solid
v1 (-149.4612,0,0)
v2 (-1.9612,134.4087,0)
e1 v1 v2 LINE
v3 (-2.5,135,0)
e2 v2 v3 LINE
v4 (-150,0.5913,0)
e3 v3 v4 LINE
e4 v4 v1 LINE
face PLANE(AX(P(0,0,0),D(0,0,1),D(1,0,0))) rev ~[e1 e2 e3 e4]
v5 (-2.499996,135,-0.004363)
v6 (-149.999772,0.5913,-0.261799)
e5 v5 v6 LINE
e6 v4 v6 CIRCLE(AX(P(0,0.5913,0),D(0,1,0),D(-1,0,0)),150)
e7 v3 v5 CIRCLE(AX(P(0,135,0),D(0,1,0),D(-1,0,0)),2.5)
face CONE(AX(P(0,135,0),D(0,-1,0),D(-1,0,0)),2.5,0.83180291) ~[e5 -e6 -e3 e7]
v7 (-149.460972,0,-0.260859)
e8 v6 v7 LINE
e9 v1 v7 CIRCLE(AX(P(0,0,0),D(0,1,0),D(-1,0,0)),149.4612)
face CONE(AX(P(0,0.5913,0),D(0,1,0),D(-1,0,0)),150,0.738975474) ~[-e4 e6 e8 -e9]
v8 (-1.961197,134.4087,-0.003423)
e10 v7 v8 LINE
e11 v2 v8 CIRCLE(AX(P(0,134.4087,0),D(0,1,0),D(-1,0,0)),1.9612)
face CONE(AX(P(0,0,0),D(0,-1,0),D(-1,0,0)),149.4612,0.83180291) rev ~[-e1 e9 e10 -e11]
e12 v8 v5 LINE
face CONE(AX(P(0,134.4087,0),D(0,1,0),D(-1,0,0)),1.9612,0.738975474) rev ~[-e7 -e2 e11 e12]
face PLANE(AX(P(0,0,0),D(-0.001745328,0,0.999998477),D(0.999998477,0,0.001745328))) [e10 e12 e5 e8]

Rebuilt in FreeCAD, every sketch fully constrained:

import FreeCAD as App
import Part
import Sketcher

V = App.Vector
Q = App.Units.Quantity

doc = App.newDocument("Part")
body = doc.addObject("PartDesign::Body", "Body")

# Sketch on XY plane
sketch1 = body.newObject("Sketcher::SketchObject", "Sketch")
sketch1.AttachmentSupport = (doc.getObject("XY_Plane"), [""])
sketch1.MapMode = "FlatFace"
sketch1.addGeometry([
    Part.LineSegment(V(-150, 0.6, 0), V(-149.5, 0, 0)),
    Part.LineSegment(V(-149.5, 0, 0), V(-2, 134.4, 0)),
    Part.LineSegment(V(-2, 134.4, 0), V(-2.5, 135, 0)),
    Part.LineSegment(V(-2.5, 135, 0), V(-150, 0.6, 0)),
], False)
sketch1.addConstraint([
    Sketcher.Constraint("Coincident", 0, 2, 1, 1),
    Sketcher.Constraint("Coincident", 1, 2, 2, 1),
    Sketcher.Constraint("Coincident", 2, 2, 3, 1),
    Sketcher.Constraint("Coincident", 3, 2, 0, 1),
    Sketcher.Constraint("PointOnObject", 0, 2, -1),
    Sketcher.Constraint("Perpendicular", 0, 1),
    Sketcher.Constraint("Perpendicular", 1, 2),
    Sketcher.Constraint("Perpendicular", 2, 3),
    Sketcher.Constraint("DistanceY", -1, 1, 2, 2, Q("135 mm")),
    Sketcher.Constraint("Distance", 0, Q("0.8 mm")),
    Sketcher.Constraint("DistanceX", 3, 2, -1, 1, Q("150 mm")),
    Sketcher.Constraint("DistanceX", 2, 2, -1, 1, Q("2.5 mm")),
])
revolution = body.newObject("PartDesign::Revolution", "Revolution")
revolution.Profile = sketch1
revolution.ReferenceAxis = (sketch1, ["V_Axis"])
revolution.Angle = 359.9

doc.recompute()
